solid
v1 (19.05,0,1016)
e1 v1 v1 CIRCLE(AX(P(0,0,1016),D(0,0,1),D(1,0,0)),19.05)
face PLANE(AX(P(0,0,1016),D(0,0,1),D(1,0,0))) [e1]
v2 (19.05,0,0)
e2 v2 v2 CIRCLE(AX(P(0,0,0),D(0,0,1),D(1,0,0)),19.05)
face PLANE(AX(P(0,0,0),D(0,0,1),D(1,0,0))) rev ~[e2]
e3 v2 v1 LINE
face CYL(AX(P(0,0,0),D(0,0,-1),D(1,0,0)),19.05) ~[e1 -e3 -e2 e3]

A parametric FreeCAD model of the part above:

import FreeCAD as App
import Part
import Sketcher

V = App.Vector
Q = App.Units.Quantity

doc = App.newDocument("Part")
params = doc.addObject("Spreadsheet::Sheet", "Params")
for row, (alias, value) in enumerate([
    ("sketch1_diameter", "1.5 in"),
    ("pad1_length", "40 in"),
], start=1):
    params.set(f"A{row}", alias)
    params.set(f"B{row}", "=" + value)
    params.setAlias(f"B{row}", alias)

body = doc.addObject("PartDesign::Body", "Body")

# Sketch on XY plane
sketch1 = doc.addObject("Sketcher::SketchObject", "Sketch")
body.addObject(sketch1)
sketch1.AttachmentSupport = (doc.XY_Plane, [""])
sketch1.MapMode = "FlatFace"
sketch1.addGeometry(Part.Circle(V(0, 0, 0), V(0, 0, 1), 19), False)
sketch1.addConstraint([
    Sketcher.Constraint("Coincident", 0, 3, -1, 1),
    Sketcher.Constraint("Diameter", 0, Q("1.5 in")),
])
sketch1.setExpression("Constraints[1]", "Params.sketch1_diameter")
pad1 = doc.addObject("PartDesign::Pad", "Pad")
body.addObject(pad1)
pad1.Profile = sketch1
pad1.setExpression("Length", "Params.pad1_length")

doc.recompute()
